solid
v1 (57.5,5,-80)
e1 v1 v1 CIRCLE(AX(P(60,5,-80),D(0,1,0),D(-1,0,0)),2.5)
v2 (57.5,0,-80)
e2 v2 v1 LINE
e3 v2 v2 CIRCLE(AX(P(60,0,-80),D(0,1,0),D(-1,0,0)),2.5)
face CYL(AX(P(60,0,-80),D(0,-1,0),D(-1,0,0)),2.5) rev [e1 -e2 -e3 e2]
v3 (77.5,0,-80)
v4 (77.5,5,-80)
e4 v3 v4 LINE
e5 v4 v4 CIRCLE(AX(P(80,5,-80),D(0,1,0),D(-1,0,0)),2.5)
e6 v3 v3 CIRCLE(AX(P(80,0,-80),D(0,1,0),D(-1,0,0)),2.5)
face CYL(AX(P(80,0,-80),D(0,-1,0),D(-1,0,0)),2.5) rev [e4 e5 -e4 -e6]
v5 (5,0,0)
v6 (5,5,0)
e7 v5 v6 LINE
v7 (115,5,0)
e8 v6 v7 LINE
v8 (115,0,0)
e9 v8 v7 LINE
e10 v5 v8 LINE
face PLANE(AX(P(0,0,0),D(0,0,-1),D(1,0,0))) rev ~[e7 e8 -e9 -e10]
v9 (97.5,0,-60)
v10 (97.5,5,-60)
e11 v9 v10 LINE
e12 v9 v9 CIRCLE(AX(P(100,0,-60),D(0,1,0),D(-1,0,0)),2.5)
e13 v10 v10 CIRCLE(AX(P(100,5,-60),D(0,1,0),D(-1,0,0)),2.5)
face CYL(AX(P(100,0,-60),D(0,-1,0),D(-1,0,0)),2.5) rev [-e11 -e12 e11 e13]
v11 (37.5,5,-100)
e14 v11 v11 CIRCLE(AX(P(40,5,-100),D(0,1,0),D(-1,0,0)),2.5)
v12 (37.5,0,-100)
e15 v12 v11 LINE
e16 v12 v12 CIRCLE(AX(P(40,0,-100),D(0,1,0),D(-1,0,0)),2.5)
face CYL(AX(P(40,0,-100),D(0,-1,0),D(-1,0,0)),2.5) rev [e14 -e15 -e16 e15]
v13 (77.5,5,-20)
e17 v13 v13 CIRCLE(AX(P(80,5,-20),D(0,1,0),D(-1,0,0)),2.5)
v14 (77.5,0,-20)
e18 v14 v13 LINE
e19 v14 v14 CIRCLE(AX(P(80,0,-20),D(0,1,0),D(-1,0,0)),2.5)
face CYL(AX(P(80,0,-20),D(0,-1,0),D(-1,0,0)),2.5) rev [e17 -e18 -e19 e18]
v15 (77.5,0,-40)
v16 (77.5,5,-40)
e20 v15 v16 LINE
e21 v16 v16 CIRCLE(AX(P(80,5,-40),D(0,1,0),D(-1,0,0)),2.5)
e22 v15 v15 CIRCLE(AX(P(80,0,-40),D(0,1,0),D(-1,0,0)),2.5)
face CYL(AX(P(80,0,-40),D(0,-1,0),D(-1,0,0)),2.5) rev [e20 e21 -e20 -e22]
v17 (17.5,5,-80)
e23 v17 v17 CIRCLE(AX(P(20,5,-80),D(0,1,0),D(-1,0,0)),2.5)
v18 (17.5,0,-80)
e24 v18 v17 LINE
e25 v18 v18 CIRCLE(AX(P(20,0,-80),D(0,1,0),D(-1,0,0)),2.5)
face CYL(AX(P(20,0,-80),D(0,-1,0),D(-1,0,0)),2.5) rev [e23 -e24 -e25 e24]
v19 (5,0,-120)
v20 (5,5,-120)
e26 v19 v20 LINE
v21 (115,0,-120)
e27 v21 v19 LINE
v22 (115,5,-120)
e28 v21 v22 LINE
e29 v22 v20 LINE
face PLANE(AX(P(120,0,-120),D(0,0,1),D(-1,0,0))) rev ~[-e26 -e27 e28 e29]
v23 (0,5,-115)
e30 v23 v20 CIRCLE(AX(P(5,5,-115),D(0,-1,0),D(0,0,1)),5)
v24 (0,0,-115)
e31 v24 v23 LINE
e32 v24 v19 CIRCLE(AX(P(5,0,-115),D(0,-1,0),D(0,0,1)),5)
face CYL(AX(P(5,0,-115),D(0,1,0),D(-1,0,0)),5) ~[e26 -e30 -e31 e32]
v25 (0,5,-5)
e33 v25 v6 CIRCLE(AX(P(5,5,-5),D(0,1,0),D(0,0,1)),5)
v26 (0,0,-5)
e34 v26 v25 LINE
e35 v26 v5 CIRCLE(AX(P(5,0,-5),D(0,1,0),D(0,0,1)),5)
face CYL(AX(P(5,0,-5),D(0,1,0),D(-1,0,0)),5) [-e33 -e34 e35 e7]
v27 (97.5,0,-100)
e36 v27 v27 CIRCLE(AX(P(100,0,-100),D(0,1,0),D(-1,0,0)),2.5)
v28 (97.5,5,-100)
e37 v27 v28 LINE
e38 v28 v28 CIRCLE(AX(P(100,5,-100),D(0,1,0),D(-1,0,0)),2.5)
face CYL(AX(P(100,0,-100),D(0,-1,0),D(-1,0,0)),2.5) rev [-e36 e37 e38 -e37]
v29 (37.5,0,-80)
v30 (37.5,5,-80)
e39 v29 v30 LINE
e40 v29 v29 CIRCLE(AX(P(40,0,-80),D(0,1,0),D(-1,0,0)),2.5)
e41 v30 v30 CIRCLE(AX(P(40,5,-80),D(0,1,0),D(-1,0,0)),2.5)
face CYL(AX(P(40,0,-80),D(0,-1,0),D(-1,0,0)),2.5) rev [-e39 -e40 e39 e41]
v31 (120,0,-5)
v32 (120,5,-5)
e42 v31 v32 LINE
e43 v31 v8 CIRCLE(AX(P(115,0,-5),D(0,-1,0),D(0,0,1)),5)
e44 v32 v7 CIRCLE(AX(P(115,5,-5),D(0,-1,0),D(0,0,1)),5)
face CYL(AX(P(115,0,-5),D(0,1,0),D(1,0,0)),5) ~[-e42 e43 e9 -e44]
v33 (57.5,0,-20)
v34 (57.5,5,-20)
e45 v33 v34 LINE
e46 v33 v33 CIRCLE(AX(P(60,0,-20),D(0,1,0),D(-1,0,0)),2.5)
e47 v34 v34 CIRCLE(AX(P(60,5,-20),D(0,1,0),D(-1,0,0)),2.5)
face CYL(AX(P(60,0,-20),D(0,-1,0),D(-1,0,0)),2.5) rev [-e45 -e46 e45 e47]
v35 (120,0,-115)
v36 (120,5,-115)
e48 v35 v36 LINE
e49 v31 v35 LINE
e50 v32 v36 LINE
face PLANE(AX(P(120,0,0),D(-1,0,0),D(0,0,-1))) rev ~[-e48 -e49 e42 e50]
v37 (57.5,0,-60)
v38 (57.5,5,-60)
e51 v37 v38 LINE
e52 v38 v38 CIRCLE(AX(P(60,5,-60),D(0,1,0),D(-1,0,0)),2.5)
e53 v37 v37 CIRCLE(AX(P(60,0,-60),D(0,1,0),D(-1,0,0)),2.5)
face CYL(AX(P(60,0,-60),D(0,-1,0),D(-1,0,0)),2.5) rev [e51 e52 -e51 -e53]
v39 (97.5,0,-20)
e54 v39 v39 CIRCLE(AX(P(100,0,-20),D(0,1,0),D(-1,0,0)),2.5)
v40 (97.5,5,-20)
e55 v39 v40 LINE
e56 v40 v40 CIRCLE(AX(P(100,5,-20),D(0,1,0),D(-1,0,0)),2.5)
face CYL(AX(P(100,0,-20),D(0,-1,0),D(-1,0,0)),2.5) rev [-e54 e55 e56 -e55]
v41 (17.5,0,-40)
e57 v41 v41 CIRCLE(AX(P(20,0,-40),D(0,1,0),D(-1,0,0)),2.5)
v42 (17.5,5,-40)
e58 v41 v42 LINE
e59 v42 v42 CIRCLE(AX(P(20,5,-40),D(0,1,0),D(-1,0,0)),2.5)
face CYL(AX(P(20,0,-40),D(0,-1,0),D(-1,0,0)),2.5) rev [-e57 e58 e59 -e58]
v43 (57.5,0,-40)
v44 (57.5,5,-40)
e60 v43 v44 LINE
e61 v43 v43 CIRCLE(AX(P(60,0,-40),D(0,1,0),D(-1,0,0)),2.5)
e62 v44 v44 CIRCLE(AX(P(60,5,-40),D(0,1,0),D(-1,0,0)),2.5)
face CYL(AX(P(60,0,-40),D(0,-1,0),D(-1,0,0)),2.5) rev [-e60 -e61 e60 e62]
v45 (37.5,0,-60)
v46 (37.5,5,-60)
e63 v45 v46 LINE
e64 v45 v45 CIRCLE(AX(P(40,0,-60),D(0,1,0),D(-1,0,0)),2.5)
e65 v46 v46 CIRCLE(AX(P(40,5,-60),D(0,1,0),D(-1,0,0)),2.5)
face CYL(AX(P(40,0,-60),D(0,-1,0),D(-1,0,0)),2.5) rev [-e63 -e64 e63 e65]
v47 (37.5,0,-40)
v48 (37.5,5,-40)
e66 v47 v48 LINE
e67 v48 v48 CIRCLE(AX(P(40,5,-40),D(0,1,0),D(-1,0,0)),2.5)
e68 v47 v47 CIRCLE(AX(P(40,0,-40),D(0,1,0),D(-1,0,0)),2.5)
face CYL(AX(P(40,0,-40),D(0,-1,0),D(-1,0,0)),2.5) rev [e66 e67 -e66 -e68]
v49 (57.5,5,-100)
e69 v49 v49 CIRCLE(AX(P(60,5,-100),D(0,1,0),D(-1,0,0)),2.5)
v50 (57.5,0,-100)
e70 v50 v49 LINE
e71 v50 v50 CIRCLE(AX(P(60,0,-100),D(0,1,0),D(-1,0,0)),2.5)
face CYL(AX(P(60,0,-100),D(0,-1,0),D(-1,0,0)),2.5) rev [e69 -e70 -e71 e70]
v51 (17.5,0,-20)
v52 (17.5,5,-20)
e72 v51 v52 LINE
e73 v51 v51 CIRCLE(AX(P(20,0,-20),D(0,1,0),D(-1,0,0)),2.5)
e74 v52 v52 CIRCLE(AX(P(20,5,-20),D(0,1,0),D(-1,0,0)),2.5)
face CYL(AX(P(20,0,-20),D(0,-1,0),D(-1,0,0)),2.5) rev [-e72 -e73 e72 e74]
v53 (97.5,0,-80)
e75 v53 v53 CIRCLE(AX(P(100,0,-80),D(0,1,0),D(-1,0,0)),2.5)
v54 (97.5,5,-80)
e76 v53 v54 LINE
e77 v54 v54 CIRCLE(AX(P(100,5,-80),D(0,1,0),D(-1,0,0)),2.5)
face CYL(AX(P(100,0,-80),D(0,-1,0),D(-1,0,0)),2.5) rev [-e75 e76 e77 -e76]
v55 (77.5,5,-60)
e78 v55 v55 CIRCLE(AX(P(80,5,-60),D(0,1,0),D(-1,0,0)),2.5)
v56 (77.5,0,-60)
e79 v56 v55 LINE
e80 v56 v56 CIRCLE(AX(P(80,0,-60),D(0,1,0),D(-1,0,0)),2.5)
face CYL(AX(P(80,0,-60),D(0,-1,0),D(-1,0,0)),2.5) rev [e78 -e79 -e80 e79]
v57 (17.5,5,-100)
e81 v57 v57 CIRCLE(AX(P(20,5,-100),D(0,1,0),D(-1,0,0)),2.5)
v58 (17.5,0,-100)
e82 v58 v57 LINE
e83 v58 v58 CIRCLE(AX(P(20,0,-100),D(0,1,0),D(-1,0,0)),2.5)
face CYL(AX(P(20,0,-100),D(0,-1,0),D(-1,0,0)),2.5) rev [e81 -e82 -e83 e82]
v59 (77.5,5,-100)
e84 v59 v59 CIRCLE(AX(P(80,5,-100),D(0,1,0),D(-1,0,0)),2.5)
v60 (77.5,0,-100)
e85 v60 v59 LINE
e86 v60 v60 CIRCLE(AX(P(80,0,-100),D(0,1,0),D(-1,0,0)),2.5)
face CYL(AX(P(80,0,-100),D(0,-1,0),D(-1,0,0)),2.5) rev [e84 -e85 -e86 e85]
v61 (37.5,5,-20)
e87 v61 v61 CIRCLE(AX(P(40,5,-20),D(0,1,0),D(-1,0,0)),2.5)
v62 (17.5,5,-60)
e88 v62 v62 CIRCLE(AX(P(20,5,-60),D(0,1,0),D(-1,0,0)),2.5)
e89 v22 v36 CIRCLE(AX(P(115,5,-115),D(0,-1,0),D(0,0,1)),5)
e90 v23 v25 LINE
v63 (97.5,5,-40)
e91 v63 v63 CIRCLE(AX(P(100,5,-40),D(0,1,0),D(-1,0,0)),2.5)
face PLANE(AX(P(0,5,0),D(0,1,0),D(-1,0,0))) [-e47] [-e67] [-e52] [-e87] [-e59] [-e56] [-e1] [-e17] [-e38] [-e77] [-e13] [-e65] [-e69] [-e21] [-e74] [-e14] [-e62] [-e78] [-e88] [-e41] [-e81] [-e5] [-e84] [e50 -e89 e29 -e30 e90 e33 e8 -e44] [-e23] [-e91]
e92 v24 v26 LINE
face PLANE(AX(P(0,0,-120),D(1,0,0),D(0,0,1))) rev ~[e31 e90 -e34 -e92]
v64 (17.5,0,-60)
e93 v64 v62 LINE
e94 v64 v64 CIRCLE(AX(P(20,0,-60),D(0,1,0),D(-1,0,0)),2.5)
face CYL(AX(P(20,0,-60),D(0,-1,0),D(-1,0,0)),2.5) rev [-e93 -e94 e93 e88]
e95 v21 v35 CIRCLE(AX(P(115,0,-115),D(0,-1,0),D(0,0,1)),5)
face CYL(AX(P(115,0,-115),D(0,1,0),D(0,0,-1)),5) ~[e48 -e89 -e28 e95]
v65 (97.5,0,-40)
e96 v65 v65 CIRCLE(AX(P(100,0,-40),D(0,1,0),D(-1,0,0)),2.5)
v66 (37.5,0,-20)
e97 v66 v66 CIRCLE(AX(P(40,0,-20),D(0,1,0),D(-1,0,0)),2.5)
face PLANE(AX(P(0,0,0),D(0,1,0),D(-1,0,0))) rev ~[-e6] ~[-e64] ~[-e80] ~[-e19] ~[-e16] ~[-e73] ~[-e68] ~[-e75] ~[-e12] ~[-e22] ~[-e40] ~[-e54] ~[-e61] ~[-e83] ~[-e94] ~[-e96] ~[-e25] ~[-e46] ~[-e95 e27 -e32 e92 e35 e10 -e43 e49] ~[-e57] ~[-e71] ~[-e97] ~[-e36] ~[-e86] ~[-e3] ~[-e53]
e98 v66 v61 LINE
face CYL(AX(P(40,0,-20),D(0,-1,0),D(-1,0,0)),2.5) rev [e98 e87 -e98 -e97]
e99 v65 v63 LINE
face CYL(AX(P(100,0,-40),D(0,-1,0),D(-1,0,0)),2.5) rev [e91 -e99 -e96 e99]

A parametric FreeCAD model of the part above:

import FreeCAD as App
import Part
import Sketcher
from FreeCAD import Vector
Q = App.Units.Quantity


def edges_at(feature, points):
    """Names of the edges that pass closest to the given points."""
    edges = feature.Shape.Edges
    near = lambda p: min(range(len(edges)), key=lambda i: edges[i].distToShape(Part.Vertex(*p))[0])
    return sorted({f"Edge{near(p) + 1}" for p in points})

doc = App.newDocument("Part")
body = doc.addObject("PartDesign::Body", "Body")

# Sketch on XZ plane
sketch1 = body.newObject("Sketcher::SketchObject", "Sketch")
sketch1.AttachmentSupport = (doc.getObject("XZ_Plane"), [""])
sketch1.MapMode = "FlatFace"
sketch1.addGeometry([
    Part.LineSegment(Vector(0, -120, 0), Vector(0, 0, 0)),  # 0
    Part.LineSegment(Vector(0, 0, 0), Vector(120, 0, 0)),  # 1
    Part.LineSegment(Vector(120, 0, 0), Vector(120, -120, 0)),  # 2
    Part.LineSegment(Vector(120, -120, 0), Vector(0, -120, 0)),  # 3
    Part.Circle(Vector(100, -100, 0), Vector(0, 0, 1), 2.5),  # 4
    Part.Circle(Vector(80, -100, 0), Vector(0, 0, 1), 2.5),  # 5
    Part.Circle(Vector(100, -80, 0), Vector(0, 0, 1), 2.5),  # 6
    Part.Circle(Vector(80, -80, 0), Vector(0, 0, 1), 2.5),  # 7
    Part.Circle(Vector(60, -100, 0), Vector(0, 0, 1), 2.5),  # 8
    Part.Circle(Vector(40, -100, 0), Vector(0, 0, 1), 2.5),  # 9
    Part.Circle(Vector(20, -100, 0), Vector(0, 0, 1), 2.5),  # 10
    Part.Circle(Vector(60, -80, 0), Vector(0, 0, 1), 2.5),  # 11
    Part.Circle(Vector(40, -80, 0), Vector(0, 0, 1), 2.5),  # 12
    Part.Circle(Vector(20, -80, 0), Vector(0, 0, 1), 2.5),  # 13
    Part.Circle(Vector(100, -60, 0), Vector(0, 0, 1), 2.5),  # 14
    Part.Circle(Vector(100, -40, 0), Vector(0, 0, 1), 2.5),  # 15
    Part.Circle(Vector(80, -60, 0), Vector(0, 0, 1), 2.5),  # 16
    Part.Circle(Vector(80, -40, 0), Vector(0, 0, 1), 2.5),  # 17
    Part.Circle(Vector(100, -20, 0), Vector(0, 0, 1), 2.5),  # 18
    Part.Circle(Vector(80, -20, 0), Vector(0, 0, 1), 2.5),  # 19
    Part.Circle(Vector(60, -60, 0), Vector(0, 0, 1), 2.5),  # 20
    Part.Circle(Vector(40, -60, 0), Vector(0, 0, 1), 2.5),  # 21
    Part.Circle(Vector(60, -40, 0), Vector(0, 0, 1), 2.5),  # 22
    Part.Circle(Vector(40, -40, 0), Vector(0, 0, 1), 2.5),  # 23
    Part.Circle(Vector(20, -60, 0), Vector(0, 0, 1), 2.5),  # 24
    Part.Circle(Vector(20, -40, 0), Vector(0, 0, 1), 2.5),  # 25
    Part.Circle(Vector(60, -20, 0), Vector(0, 0, 1), 2.5),  # 26
    Part.Circle(Vector(40, -20, 0), Vector(0, 0, 1), 2.5),  # 27
    Part.Circle(Vector(20, -20, 0), Vector(0, 0, 1), 2.5),  # 28
], False)
sketch1.addConstraint([
    Sketcher.Constraint("Coincident", 0, 2, 1, 1),
    Sketcher.Constraint("Coincident", 1, 2, 2, 1),
    Sketcher.Constraint("Coincident", 2, 2, 3, 1),
    Sketcher.Constraint("Coincident", 3, 2, 0, 1),
    Sketcher.Constraint("Vertical", 0),
    Sketcher.Constraint("Horizontal", 1),
    Sketcher.Constraint("Vertical", 2),
    Sketcher.Constraint("Horizontal", 3),
    Sketcher.Constraint("Coincident", 0, 2, -1, 1),
    Sketcher.Constraint("Equal", 4, 5),
    Sketcher.Constraint("Equal", 5, 6),
    Sketcher.Constraint("Equal", 6, 7),
    Sketcher.Constraint("Equal", 7, 8),
    Sketcher.Constraint("Equal", 8, 9),
    Sketcher.Constraint("Equal", 9, 10),
    Sketcher.Constraint("Equal", 10, 11),
    Sketcher.Constraint("Equal", 11, 12),
    Sketcher.Constraint("Equal", 12, 13),
    Sketcher.Constraint("Equal", 13, 14),
    Sketcher.Constraint("Equal", 14, 15),
    Sketcher.Constraint("Equal", 15, 16),
    Sketcher.Constraint("Equal", 16, 17),
    Sketcher.Constraint("Equal", 17, 18),
    Sketcher.Constraint("Equal", 18, 19),
    Sketcher.Constraint("Equal", 19, 20),
    Sketcher.Constraint("Equal", 20, 21),
    Sketcher.Constraint("Equal", 21, 22),
    Sketcher.Constraint("Equal", 22, 23),
    Sketcher.Constraint("Equal", 23, 24),
    Sketcher.Constraint("Equal", 24, 25),
    Sketcher.Constraint("Equal", 25, 26),
    Sketcher.Constraint("Equal", 26, 27),
    Sketcher.Constraint("Equal", 27, 28),
    Sketcher.Constraint("Horizontal", 4, 3, 5, 3),
    Sketcher.Constraint("Horizontal", 6, 3, 7, 3),
    Sketcher.Constraint("Horizontal", 5, 3, 8, 3),
    Sketcher.Constraint("Horizontal", 8, 3, 9, 3),
    Sketcher.Constraint("Horizontal", 9, 3, 10, 3),
    Sketcher.Constraint("Horizontal", 7, 3, 11, 3),
    Sketcher.Constraint("Horizontal", 11, 3, 12, 3),
    Sketcher.Constraint("Horizontal", 12, 3, 13, 3),
    Sketcher.Constraint("Horizontal", 14, 3, 16, 3),
    Sketcher.Constraint("Horizontal", 15, 3, 17, 3),
    Sketcher.Constraint("Horizontal", 18, 3, 19, 3),
    Sketcher.Constraint("Horizontal", 16, 3, 20, 3),
    Sketcher.Constraint("Horizontal", 20, 3, 21, 3),
    Sketcher.Constraint("Horizontal", 17, 3, 22, 3),
    Sketcher.Constraint("Horizontal", 22, 3, 23, 3),
    Sketcher.Constraint("Horizontal", 21, 3, 24, 3),
    Sketcher.Constraint("Horizontal", 23, 3, 25, 3),
    Sketcher.Constraint("Horizontal", 19, 3, 26, 3),
    Sketcher.Constraint("Horizontal", 26, 3, 27, 3),
    Sketcher.Constraint("Horizontal", 27, 3, 28, 3),
    Sketcher.Constraint("Vertical", 4, 3, 6, 3),
    Sketcher.Constraint("Vertical", 5, 3, 7, 3),
    Sketcher.Constraint("Vertical", 8, 3, 11, 3),
    Sketcher.Constraint("Vertical", 9, 3, 12, 3),
    Sketcher.Constraint("Vertical", 10, 3, 13, 3),
    Sketcher.Constraint("Vertical", 6, 3, 14, 3),
    Sketcher.Constraint("Vertical", 14, 3, 15, 3),
    Sketcher.Constraint("Vertical", 7, 3, 16, 3),
    Sketcher.Constraint("Vertical", 16, 3, 17, 3),
    Sketcher.Constraint("Vertical", 15, 3, 18, 3),
    Sketcher.Constraint("Vertical", 17, 3, 19, 3),
    Sketcher.Constraint("Vertical", 11, 3, 20, 3),
    Sketcher.Constraint("Vertical", 12, 3, 21, 3),
    Sketcher.Constraint("Vertical", 20, 3, 22, 3),
    Sketcher.Constraint("Vertical", 21, 3, 23, 3),
    Sketcher.Constraint("Vertical", 13, 3, 24, 3),
    Sketcher.Constraint("Vertical", 24, 3, 25, 3),
    Sketcher.Constraint("Vertical", 22, 3, 26, 3),
    Sketcher.Constraint("Vertical", 23, 3, 27, 3),
    Sketcher.Constraint("Vertical", 25, 3, 28, 3),
    Sketcher.Constraint("Equal", 3, 0),
    Sketcher.Constraint("Diameter", 4, Q("5 mm")),
    Sketcher.Constraint("DistanceX", 1, 1, 1, 2, Q("120 mm")),
    Sketcher.Constraint("DistanceX", -1, 1, 10, 3, Q("20 mm")),
    Sketcher.Constraint("DistanceY", 18, 3, -1, 1, Q("20 mm")),
    Sketcher.Constraint("DistanceX", 5, 3, 4, 3, Q("20 mm")),
    Sketcher.Constraint("DistanceY", 4, 3, 6, 3, Q("20 mm")),
    Sketcher.Constraint("DistanceX", 8, 3, 5, 3, Q("20 mm")),
    Sketcher.Constraint("DistanceX", 9, 3, 8, 3, Q("20 mm")),
    Sketcher.Constraint("DistanceX", 10, 3, 9, 3, Q("20 mm")),
    Sketcher.Constraint("DistanceY", 6, 3, 14, 3, Q("20 mm")),
    Sketcher.Constraint("DistanceY", 14, 3, 15, 3, Q("20 mm")),
    Sketcher.Constraint("DistanceY", 15, 3, 18, 3, Q("20 mm")),
])
pad1 = body.newObject("PartDesign::Pad", "Pad")
pad1.Profile = sketch1
pad1.Length = 5
pad1.Reversed = True
doc.recompute()

fillet = body.newObject("PartDesign::Fillet", "Fillet")
fillet.Base = (pad1, edges_at(pad1, [
    (0, 2.5, -120),
    (0, 2.5, 0),
    (120, 2.5, 0),
    (120, 2.5, -120),
]))
fillet.Radius = 5

doc.recompute()
